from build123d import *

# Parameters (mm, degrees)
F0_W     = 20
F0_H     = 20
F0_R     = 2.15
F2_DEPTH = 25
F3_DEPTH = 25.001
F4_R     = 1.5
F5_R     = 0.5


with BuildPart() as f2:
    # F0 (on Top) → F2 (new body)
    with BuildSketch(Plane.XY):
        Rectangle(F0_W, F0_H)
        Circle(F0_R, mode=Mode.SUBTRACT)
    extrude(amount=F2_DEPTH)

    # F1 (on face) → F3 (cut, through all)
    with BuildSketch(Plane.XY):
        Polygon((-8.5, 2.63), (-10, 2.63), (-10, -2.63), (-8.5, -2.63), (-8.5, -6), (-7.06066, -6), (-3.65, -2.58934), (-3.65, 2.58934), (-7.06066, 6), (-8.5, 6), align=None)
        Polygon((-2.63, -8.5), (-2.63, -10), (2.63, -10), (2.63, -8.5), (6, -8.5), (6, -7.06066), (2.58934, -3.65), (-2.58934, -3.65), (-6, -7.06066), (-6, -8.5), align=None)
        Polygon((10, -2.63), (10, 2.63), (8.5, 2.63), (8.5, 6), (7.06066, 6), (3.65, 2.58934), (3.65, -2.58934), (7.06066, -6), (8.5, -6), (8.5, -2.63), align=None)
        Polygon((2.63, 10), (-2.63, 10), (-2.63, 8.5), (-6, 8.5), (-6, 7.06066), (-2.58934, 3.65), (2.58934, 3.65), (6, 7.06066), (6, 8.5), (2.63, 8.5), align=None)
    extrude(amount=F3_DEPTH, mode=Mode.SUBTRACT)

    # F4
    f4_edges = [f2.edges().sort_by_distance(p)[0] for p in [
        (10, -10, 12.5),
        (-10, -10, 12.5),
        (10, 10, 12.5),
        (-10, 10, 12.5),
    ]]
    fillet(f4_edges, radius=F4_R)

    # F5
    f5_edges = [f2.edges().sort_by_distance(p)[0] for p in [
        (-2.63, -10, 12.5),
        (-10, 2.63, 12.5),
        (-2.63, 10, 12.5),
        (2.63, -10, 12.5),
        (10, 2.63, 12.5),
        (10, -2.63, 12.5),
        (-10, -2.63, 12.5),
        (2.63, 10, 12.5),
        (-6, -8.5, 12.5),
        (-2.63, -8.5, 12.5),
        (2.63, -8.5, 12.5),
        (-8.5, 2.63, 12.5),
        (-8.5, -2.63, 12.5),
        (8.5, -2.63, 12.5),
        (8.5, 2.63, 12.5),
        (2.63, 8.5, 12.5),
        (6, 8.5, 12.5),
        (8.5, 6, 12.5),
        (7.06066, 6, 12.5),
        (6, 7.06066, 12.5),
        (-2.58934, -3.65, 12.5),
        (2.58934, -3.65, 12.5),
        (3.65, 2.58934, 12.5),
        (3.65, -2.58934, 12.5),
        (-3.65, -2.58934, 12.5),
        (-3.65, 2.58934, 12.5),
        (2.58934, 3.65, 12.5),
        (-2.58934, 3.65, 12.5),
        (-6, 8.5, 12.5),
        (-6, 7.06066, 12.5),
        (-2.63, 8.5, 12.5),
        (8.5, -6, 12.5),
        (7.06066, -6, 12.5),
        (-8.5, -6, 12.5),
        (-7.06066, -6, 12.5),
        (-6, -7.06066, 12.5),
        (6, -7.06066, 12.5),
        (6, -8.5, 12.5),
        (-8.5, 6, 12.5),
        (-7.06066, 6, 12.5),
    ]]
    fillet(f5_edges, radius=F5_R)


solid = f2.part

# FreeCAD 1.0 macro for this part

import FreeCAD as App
import Part
import Sketcher
Q = App.Units.Quantity


def edges_at(feature, points):
    """Names of the edges that pass closest to the given points."""
    edges = feature.Shape.Edges
    near = lambda p: min(range(len(edges)), key=lambda i: edges[i].distToShape(Part.Vertex(*p))[0])
    return sorted({f"Edge{near(p) + 1}" for p in points})

doc = App.newDocument("Part")
params = doc.addObject("Spreadsheet::Sheet", "Params")
for row, (alias, value) in enumerate([
    ("sketch1_diameter", "4.3 mm"),
    ("sketch1_width", "20 mm"),
    ("pad1_length", "25 mm"),
    ("sketch2_width", "1.5 mm"),
    ("sketch2_width2", "5.26 mm"),
    ("fillet_radius", "1.5 mm"),
    ("fillet2_radius", "0.5 mm"),
], start=1):
    params.set(f"A{row}", alias)
    params.set(f"B{row}", "=" + value)
    params.setAlias(f"B{row}", alias)

body = doc.addObject("PartDesign::Body", "Body")

sketch1 = body.newObject("Sketcher::SketchObject", "Sketch")
sketch1.AttachmentSupport = (doc.getObject("XY_Plane"), [""])
sketch1.MapMode = "FlatFace"
sketch1.addGeometry([
    Part.LineSegment(App.Vector(-10, 10, 0), App.Vector(-10, -10, 0)),
    Part.LineSegment(App.Vector(-10, -10, 0), App.Vector(10, -10, 0)),
    Part.LineSegment(App.Vector(10, -10, 0), App.Vector(10, 10, 0)),
    Part.LineSegment(App.Vector(10, 10, 0), App.Vector(-10, 10, 0)),
    Part.Circle(App.Vector(0, 0, 0), App.Vector(0, 0, 1), 2.1),
], False)
sketch1.addConstraint([
    Sketcher.Constraint("Coincident", 0, 2, 1, 1),
    Sketcher.Constraint("Coincident", 1, 2, 2, 1),
    Sketcher.Constraint("Coincident", 2, 2, 3, 1),
    Sketcher.Constraint("Coincident", 3, 2, 0, 1),
    Sketcher.Constraint("Vertical", 0),
    Sketcher.Constraint("Horizontal", 1),
    Sketcher.Constraint("Vertical", 2),
    Sketcher.Constraint("Horizontal", 3),
    Sketcher.Constraint("Coincident", 4, 3, -1, 1),
    Sketcher.Constraint("Symmetric", 0, 2, 2, 2, -1, 1),
    Sketcher.Constraint("Equal", 3, 0),
    Sketcher.Constraint("Diameter", 4, Q("4.3 mm")),
    Sketcher.Constraint("DistanceX", 1, 1, 1, 2, Q("20 mm")),
])
sketch1.setExpression("Constraints[11]", "Params.sketch1_diameter")
sketch1.setExpression("Constraints[12]", "Params.sketch1_width")
pad1 = body.newObject("PartDesign::Pad", "Pad")
pad1.Profile = sketch1
pad1.setExpression("Length", "Params.pad1_length")

sketch2 = body.newObject("Sketcher::SketchObject", "Sketch001")
sketch2.AttachmentSupport = (doc.getObject("XY_Plane"), [""])
sketch2.MapMode = "FlatFace"
sketch2.addGeometry([
    Part.LineSegment(App.Vector(-8.5, 2.6, 0), App.Vector(-10, 2.6, 0)),
    Part.LineSegment(App.Vector(-10, 2.6, 0), App.Vector(-10, -2.6, 0)),
    Part.LineSegment(App.Vector(-10, -2.6, 0), App.Vector(-8.5, -2.6, 0)),
    Part.LineSegment(App.Vector(-8.5, -2.6, 0), App.Vector(-8.5, -6, 0)),
    Part.LineSegment(App.Vector(-8.5, -6, 0), App.Vector(-7.1, -6, 0)),
    Part.LineSegment(App.Vector(-7.1, -6, 0), App.Vector(-3.6, -2.6, 0)),
    Part.LineSegment(App.Vector(-3.6, -2.6, 0), App.Vector(-3.6, 2.6, 0)),
    Part.LineSegment(App.Vector(-3.6, 2.6, 0), App.Vector(-7.1, 6, 0)),
    Part.LineSegment(App.Vector(-7.1, 6, 0), App.Vector(-8.5, 6, 0)),
    Part.LineSegment(App.Vector(-8.5, 6, 0), App.Vector(-8.5, 2.6, 0)),
    Part.LineSegment(App.Vector(-2.6, -8.5, 0), App.Vector(-2.6, -10, 0)),
    Part.LineSegment(App.Vector(-2.6, -10, 0), App.Vector(2.6, -10, 0)),
    Part.LineSegment(App.Vector(2.6, -10, 0), App.Vector(2.6, -8.5, 0)),
    Part.LineSegment(App.Vector(2.6, -8.5, 0), App.Vector(6, -8.5, 0)),
    Part.LineSegment(App.Vector(6, -8.5, 0), App.Vector(6, -7.1, 0)),
    Part.LineSegment(App.Vector(6, -7.1, 0), App.Vector(2.6, -3.6, 0)),
    Part.LineSegment(App.Vector(2.6, -3.6, 0), App.Vector(-2.6, -3.6, 0)),
    Part.LineSegment(App.Vector(-2.6, -3.6, 0), App.Vector(-6, -7.1, 0)),
    Part.LineSegment(App.Vector(-6, -7.1, 0), App.Vector(-6, -8.5, 0)),
    Part.LineSegment(App.Vector(-6, -8.5, 0), App.Vector(-2.6, -8.5, 0)),
    Part.LineSegment(App.Vector(10, -2.6, 0), App.Vector(10, 2.6, 0)),
    Part.LineSegment(App.Vector(10, 2.6, 0), App.Vector(8.5, 2.6, 0)),
    Part.LineSegment(App.Vector(8.5, 2.6, 0), App.Vector(8.5, 6, 0)),
    Part.LineSegment(App.Vector(8.5, 6, 0), App.Vector(7.1, 6, 0)),
    Part.LineSegment(App.Vector(7.1, 6, 0), App.Vector(3.6, 2.6, 0)),
    Part.LineSegment(App.Vector(3.6, 2.6, 0), App.Vector(3.6, -2.6, 0)),
    Part.LineSegment(App.Vector(3.6, -2.6, 0), App.Vector(7.1, -6, 0)),
    Part.LineSegment(App.Vector(7.1, -6, 0), App.Vector(8.5, -6, 0)),
    Part.LineSegment(App.Vector(8.5, -6, 0), App.Vector(8.5, -2.6, 0)),
    Part.LineSegment(App.Vector(8.5, -2.6, 0), App.Vector(10, -2.6, 0)),
    Part.LineSegment(App.Vector(2.6, 10, 0), App.Vector(-2.6, 10, 0)),
    Part.LineSegment(App.Vector(-2.6, 10, 0), App.Vector(-2.6, 8.5, 0)),
    Part.LineSegment(App.Vector(-2.6, 8.5, 0), App.Vector(-6, 8.5, 0)),
    Part.LineSegment(App.Vector(-6, 8.5, 0), App.Vector(-6, 7.1, 0)),
    Part.LineSegment(App.Vector(-6, 7.1, 0), App.Vector(-2.6, 3.6, 0)),
    Part.LineSegment(App.Vector(-2.6, 3.6, 0), App.Vector(2.6, 3.6, 0)),
    Part.LineSegment(App.Vector(2.6, 3.6, 0), App.Vector(6, 7.1, 0)),
    Part.LineSegment(App.Vector(6, 7.1, 0), App.Vector(6, 8.5, 0)),
    Part.LineSegment(App.Vector(6, 8.5, 0), App.Vector(2.6, 8.5, 0)),
    Part.LineSegment(App.Vector(2.6, 8.5, 0), App.Vector(2.6, 10, 0)),
], False)
sketch2.addConstraint([
    Sketcher.Constraint("Coincident", 0, 2, 1, 1),
    Sketcher.Constraint("Coincident", 1, 2, 2, 1),
    Sketcher.Constraint("Coincident", 2, 2, 3, 1),
    Sketcher.Constraint("Coincident", 3, 2, 4, 1),
    Sketcher.Constraint("Coincident", 4, 2, 5, 1),
    Sketcher.Constraint("Coincident", 5, 2, 6, 1),
    Sketcher.Constraint("Coincident", 6, 2, 7, 1),
    Sketcher.Constraint("Coincident", 7, 2, 8, 1),
    Sketcher.Constraint("Coincident", 8, 2, 9, 1),
    Sketcher.Constraint("Coincident", 9, 2, 0, 1),
    Sketcher.Constraint("Coincident", 10, 2, 11, 1),
    Sketcher.Constraint("Coincident", 11, 2, 12, 1),
    Sketcher.Constraint("Coincident", 12, 2, 13, 1),
    Sketcher.Constraint("Coincident", 13, 2, 14, 1),
    Sketcher.Constraint("Coincident", 14, 2, 15, 1),
    Sketcher.Constraint("Coincident", 15, 2, 16, 1),
    Sketcher.Constraint("Coincident", 16, 2, 17, 1),
    Sketcher.Constraint("Coincident", 17, 2, 18, 1),
    Sketcher.Constraint("Coincident", 18, 2, 19, 1),
    Sketcher.Constraint("Coincident", 19, 2, 10, 1),
    Sketcher.Constraint("Coincident", 20, 2, 21, 1),
    Sketcher.Constraint("Coincident", 21, 2, 22, 1),
    Sketcher.Constraint("Coincident", 22, 2, 23, 1),
    Sketcher.Constraint("Coincident", 23, 2, 24, 1),
    Sketcher.Constraint("Coincident", 24, 2, 25, 1),
    Sketcher.Constraint("Coincident", 25, 2, 26, 1),
    Sketcher.Constraint("Coincident", 26, 2, 27, 1),
    Sketcher.Constraint("Coincident", 27, 2, 28, 1),
    Sketcher.Constraint("Coincident", 28, 2, 29, 1),
    Sketcher.Constraint("Coincident", 29, 2, 20, 1),
    Sketcher.Constraint("Coincident", 30, 2, 31, 1),
    Sketcher.Constraint("Coincident", 31, 2, 32, 1),
    Sketcher.Constraint("Coincident", 32, 2, 33, 1),
    Sketcher.Constraint("Coincident", 33, 2, 34, 1),
    Sketcher.Constraint("Coincident", 34, 2, 35, 1),
    Sketcher.Constraint("Coincident", 35, 2, 36, 1),
    Sketcher.Constraint("Coincident", 36, 2, 37, 1),
    Sketcher.Constraint("Coincident", 37, 2, 38, 1),
    Sketcher.Constraint("Coincident", 38, 2, 39, 1),
    Sketcher.Constraint("Coincident", 39, 2, 30, 1),
    Sketcher.Constraint("Horizontal", 0),
    Sketcher.Constraint("Vertical", 1),
    Sketcher.Constraint("Horizontal", 2),
    Sketcher.Constraint("Vertical", 3),
    Sketcher.Constraint("Horizontal", 4),
    Sketcher.Constraint("Vertical", 6),
    Sketcher.Constraint("Horizontal", 8),
    Sketcher.Constraint("Vertical", 9),
    Sketcher.Constraint("Vertical", 10),
    Sketcher.Constraint("Horizontal", 11),
    Sketcher.Constraint("Vertical", 12),
    Sketcher.Constraint("Horizontal", 13),
    Sketcher.Constraint("Vertical", 14),
    Sketcher.Constraint("Horizontal", 16),
    Sketcher.Constraint("Vertical", 18),
    Sketcher.Constraint("Horizontal", 19),
    Sketcher.Constraint("Vertical", 20),
    Sketcher.Constraint("Horizontal", 21),
    Sketcher.Constraint("Vertical", 22),
    Sketcher.Constraint("Horizontal", 23),
    Sketcher.Constraint("Vertical", 25),
    Sketcher.Constraint("Horizontal", 27),
    Sketcher.Constraint("Vertical", 28),
    Sketcher.Constraint("Horizontal", 29),
    Sketcher.Constraint("Horizontal", 30),
    Sketcher.Constraint("Vertical", 31),
    Sketcher.Constraint("Horizontal", 32),
    Sketcher.Constraint("Vertical", 33),
    Sketcher.Constraint("Horizontal", 35),
    Sketcher.Constraint("Vertical", 37),
    Sketcher.Constraint("Horizontal", 38),
    Sketcher.Constraint("Vertical", 39),
    Sketcher.Constraint("Symmetric", 1, 2, 20, 2, -1, 1),
    Sketcher.Constraint("Symmetric", 3, 2, 22, 2, -1, 1),
    Sketcher.Constraint("Symmetric", 5, 2, 24, 2, -1, 1),
    Sketcher.Constraint("Symmetric", 7, 2, 26, 2, -1, 1),
    Sketcher.Constraint("Symmetric", 9, 2, 28, 2, -1, 1),
    Sketcher.Constraint("Symmetric", 11, 2, 30, 2, -1, 1),
    Sketcher.Constraint("Symmetric", 13, 2, 32, 2, -1, 1),
    Sketcher.Constraint("Symmetric", 15, 2, 34, 2, -1, 1),
    Sketcher.Constraint("Symmetric", 17, 2, 36, 2, -1, 1),
    Sketcher.Constraint("Symmetric", 19, 2, 38, 2, -1, 1),
    Sketcher.Constraint("Symmetric", 14, 2, 17, 2, -2),
    Sketcher.Constraint("Symmetric", 12, 2, 19, 2, -2),
    Sketcher.Constraint("Symmetric", 9, 2, 21, 2, -2),
    Sketcher.Constraint("Symmetric", 7, 2, 23, 2, -2),
    Sketcher.Constraint("Perpendicular", 5, 7),
    Sketcher.Constraint("Parallel", 7, 15),
    Sketcher.Constraint("Perpendicular", 15, 17),
    Sketcher.Constraint("Parallel", 17, 24),
    Sketcher.Constraint("Perpendicular", 24, 26),
    Sketcher.Constraint("Parallel", 26, 34),
    Sketcher.Constraint("Perpendicular", 34, 36),
    Sketcher.Constraint("Horizontal", 6, 2, 24, 2),
    Sketcher.Constraint("Equal", 30, 1),
    Sketcher.Constraint("Equal", 38, 3),
    Sketcher.Constraint("Equal", 35, 6),
    Sketcher.Constraint("Equal", 29, 10),
    Sketcher.Constraint("Equal", 27, 14),
    Sketcher.Constraint("DistanceX", 0, 2, 0, 1, Q("1.5 mm")),
    Sketcher.Constraint("DistanceX", 0, 2, -1, 1, Q("10 mm")),
    Sketcher.Constraint("DistanceY", 3, 2, -1, 1, Q("6 mm")),
    Sketcher.Constraint("DistanceY", 10, 2, -1, 1, Q("10 mm")),
    Sketcher.Constraint("DistanceX", 11, 1, 11, 2, Q("5.26 mm")),
    Sketcher.Constraint("DistanceX", 5, 2, -1, 1, Q("3.65 mm")),
    Sketcher.Constraint("Distance", 5, Q("4.823402 mm")),
])
sketch2.setExpression("Constraints[99]", "Params.sketch2_width")
sketch2.setExpression("Constraints[103]", "Params.sketch2_width2")
pocket1 = body.newObject("PartDesign::Pocket", "Pocket")
pocket1.Profile = sketch2
pocket1.Type = "ThroughAll"
pocket1.Reversed = True
doc.recompute()

fillet = body.newObject("PartDesign::Fillet", "Fillet")
fillet.Base = (pocket1, edges_at(pocket1, [
    (10, -10, 12.5),
    (-10, -10, 12.5),
    (10, 10, 12.5),
    (-10, 10, 12.5),
]))
fillet.setExpression("Radius", "Params.fillet_radius")
doc.recompute()

fillet2 = body.newObject("PartDesign::Fillet", "Fillet001")
fillet2.Base = (fillet, edges_at(fillet, [
    (-2.63, -10, 12.5),
    (-10, 2.63, 12.5),
    (-2.63, 10, 12.5),
    (2.63, -10, 12.5),
    (10, 2.63, 12.5),
    (10, -2.63, 12.5),
    (-10, -2.63, 12.5),
    (2.63, 10, 12.5),
    (-6, -8.5, 12.5),
    (-2.63, -8.5, 12.5),
    (2.63, -8.5, 12.5),
    (-8.5, 2.63, 12.5),
    (-8.5, -2.63, 12.5),
    (8.5, -2.63, 12.5),
    (8.5, 2.63, 12.5),
    (2.63, 8.5, 12.5),
    (6, 8.5, 12.5),
    (8.5, 6, 12.5),
    (7.061, 6, 12.5),
    (6, 7.061, 12.5),
    (-2.589, -3.65, 12.5),
    (2.589, -3.65, 12.5),
    (3.65, 2.589, 12.5),
    (3.65, -2.589, 12.5),
    (-3.65, -2.589, 12.5),
    (-3.65, 2.589, 12.5),
    (2.589, 3.65, 12.5),
    (-2.589, 3.65, 12.5),
    (-6, 8.5, 12.5),
    (-6, 7.061, 12.5),
    (-2.63, 8.5, 12.5),
    (8.5, -6, 12.5),
    (7.061, -6, 12.5),
    (-8.5, -6, 12.5),
    (-7.061, -6, 12.5),
    (-6, -7.061, 12.5),
    (6, -7.061, 12.5),
    (6, -8.5, 12.5),
    (-8.5, 6, 12.5),
    (-7.061, 6, 12.5),
]))
fillet2.setExpression("Radius", "Params.fillet2_radius")

doc.recompute()
